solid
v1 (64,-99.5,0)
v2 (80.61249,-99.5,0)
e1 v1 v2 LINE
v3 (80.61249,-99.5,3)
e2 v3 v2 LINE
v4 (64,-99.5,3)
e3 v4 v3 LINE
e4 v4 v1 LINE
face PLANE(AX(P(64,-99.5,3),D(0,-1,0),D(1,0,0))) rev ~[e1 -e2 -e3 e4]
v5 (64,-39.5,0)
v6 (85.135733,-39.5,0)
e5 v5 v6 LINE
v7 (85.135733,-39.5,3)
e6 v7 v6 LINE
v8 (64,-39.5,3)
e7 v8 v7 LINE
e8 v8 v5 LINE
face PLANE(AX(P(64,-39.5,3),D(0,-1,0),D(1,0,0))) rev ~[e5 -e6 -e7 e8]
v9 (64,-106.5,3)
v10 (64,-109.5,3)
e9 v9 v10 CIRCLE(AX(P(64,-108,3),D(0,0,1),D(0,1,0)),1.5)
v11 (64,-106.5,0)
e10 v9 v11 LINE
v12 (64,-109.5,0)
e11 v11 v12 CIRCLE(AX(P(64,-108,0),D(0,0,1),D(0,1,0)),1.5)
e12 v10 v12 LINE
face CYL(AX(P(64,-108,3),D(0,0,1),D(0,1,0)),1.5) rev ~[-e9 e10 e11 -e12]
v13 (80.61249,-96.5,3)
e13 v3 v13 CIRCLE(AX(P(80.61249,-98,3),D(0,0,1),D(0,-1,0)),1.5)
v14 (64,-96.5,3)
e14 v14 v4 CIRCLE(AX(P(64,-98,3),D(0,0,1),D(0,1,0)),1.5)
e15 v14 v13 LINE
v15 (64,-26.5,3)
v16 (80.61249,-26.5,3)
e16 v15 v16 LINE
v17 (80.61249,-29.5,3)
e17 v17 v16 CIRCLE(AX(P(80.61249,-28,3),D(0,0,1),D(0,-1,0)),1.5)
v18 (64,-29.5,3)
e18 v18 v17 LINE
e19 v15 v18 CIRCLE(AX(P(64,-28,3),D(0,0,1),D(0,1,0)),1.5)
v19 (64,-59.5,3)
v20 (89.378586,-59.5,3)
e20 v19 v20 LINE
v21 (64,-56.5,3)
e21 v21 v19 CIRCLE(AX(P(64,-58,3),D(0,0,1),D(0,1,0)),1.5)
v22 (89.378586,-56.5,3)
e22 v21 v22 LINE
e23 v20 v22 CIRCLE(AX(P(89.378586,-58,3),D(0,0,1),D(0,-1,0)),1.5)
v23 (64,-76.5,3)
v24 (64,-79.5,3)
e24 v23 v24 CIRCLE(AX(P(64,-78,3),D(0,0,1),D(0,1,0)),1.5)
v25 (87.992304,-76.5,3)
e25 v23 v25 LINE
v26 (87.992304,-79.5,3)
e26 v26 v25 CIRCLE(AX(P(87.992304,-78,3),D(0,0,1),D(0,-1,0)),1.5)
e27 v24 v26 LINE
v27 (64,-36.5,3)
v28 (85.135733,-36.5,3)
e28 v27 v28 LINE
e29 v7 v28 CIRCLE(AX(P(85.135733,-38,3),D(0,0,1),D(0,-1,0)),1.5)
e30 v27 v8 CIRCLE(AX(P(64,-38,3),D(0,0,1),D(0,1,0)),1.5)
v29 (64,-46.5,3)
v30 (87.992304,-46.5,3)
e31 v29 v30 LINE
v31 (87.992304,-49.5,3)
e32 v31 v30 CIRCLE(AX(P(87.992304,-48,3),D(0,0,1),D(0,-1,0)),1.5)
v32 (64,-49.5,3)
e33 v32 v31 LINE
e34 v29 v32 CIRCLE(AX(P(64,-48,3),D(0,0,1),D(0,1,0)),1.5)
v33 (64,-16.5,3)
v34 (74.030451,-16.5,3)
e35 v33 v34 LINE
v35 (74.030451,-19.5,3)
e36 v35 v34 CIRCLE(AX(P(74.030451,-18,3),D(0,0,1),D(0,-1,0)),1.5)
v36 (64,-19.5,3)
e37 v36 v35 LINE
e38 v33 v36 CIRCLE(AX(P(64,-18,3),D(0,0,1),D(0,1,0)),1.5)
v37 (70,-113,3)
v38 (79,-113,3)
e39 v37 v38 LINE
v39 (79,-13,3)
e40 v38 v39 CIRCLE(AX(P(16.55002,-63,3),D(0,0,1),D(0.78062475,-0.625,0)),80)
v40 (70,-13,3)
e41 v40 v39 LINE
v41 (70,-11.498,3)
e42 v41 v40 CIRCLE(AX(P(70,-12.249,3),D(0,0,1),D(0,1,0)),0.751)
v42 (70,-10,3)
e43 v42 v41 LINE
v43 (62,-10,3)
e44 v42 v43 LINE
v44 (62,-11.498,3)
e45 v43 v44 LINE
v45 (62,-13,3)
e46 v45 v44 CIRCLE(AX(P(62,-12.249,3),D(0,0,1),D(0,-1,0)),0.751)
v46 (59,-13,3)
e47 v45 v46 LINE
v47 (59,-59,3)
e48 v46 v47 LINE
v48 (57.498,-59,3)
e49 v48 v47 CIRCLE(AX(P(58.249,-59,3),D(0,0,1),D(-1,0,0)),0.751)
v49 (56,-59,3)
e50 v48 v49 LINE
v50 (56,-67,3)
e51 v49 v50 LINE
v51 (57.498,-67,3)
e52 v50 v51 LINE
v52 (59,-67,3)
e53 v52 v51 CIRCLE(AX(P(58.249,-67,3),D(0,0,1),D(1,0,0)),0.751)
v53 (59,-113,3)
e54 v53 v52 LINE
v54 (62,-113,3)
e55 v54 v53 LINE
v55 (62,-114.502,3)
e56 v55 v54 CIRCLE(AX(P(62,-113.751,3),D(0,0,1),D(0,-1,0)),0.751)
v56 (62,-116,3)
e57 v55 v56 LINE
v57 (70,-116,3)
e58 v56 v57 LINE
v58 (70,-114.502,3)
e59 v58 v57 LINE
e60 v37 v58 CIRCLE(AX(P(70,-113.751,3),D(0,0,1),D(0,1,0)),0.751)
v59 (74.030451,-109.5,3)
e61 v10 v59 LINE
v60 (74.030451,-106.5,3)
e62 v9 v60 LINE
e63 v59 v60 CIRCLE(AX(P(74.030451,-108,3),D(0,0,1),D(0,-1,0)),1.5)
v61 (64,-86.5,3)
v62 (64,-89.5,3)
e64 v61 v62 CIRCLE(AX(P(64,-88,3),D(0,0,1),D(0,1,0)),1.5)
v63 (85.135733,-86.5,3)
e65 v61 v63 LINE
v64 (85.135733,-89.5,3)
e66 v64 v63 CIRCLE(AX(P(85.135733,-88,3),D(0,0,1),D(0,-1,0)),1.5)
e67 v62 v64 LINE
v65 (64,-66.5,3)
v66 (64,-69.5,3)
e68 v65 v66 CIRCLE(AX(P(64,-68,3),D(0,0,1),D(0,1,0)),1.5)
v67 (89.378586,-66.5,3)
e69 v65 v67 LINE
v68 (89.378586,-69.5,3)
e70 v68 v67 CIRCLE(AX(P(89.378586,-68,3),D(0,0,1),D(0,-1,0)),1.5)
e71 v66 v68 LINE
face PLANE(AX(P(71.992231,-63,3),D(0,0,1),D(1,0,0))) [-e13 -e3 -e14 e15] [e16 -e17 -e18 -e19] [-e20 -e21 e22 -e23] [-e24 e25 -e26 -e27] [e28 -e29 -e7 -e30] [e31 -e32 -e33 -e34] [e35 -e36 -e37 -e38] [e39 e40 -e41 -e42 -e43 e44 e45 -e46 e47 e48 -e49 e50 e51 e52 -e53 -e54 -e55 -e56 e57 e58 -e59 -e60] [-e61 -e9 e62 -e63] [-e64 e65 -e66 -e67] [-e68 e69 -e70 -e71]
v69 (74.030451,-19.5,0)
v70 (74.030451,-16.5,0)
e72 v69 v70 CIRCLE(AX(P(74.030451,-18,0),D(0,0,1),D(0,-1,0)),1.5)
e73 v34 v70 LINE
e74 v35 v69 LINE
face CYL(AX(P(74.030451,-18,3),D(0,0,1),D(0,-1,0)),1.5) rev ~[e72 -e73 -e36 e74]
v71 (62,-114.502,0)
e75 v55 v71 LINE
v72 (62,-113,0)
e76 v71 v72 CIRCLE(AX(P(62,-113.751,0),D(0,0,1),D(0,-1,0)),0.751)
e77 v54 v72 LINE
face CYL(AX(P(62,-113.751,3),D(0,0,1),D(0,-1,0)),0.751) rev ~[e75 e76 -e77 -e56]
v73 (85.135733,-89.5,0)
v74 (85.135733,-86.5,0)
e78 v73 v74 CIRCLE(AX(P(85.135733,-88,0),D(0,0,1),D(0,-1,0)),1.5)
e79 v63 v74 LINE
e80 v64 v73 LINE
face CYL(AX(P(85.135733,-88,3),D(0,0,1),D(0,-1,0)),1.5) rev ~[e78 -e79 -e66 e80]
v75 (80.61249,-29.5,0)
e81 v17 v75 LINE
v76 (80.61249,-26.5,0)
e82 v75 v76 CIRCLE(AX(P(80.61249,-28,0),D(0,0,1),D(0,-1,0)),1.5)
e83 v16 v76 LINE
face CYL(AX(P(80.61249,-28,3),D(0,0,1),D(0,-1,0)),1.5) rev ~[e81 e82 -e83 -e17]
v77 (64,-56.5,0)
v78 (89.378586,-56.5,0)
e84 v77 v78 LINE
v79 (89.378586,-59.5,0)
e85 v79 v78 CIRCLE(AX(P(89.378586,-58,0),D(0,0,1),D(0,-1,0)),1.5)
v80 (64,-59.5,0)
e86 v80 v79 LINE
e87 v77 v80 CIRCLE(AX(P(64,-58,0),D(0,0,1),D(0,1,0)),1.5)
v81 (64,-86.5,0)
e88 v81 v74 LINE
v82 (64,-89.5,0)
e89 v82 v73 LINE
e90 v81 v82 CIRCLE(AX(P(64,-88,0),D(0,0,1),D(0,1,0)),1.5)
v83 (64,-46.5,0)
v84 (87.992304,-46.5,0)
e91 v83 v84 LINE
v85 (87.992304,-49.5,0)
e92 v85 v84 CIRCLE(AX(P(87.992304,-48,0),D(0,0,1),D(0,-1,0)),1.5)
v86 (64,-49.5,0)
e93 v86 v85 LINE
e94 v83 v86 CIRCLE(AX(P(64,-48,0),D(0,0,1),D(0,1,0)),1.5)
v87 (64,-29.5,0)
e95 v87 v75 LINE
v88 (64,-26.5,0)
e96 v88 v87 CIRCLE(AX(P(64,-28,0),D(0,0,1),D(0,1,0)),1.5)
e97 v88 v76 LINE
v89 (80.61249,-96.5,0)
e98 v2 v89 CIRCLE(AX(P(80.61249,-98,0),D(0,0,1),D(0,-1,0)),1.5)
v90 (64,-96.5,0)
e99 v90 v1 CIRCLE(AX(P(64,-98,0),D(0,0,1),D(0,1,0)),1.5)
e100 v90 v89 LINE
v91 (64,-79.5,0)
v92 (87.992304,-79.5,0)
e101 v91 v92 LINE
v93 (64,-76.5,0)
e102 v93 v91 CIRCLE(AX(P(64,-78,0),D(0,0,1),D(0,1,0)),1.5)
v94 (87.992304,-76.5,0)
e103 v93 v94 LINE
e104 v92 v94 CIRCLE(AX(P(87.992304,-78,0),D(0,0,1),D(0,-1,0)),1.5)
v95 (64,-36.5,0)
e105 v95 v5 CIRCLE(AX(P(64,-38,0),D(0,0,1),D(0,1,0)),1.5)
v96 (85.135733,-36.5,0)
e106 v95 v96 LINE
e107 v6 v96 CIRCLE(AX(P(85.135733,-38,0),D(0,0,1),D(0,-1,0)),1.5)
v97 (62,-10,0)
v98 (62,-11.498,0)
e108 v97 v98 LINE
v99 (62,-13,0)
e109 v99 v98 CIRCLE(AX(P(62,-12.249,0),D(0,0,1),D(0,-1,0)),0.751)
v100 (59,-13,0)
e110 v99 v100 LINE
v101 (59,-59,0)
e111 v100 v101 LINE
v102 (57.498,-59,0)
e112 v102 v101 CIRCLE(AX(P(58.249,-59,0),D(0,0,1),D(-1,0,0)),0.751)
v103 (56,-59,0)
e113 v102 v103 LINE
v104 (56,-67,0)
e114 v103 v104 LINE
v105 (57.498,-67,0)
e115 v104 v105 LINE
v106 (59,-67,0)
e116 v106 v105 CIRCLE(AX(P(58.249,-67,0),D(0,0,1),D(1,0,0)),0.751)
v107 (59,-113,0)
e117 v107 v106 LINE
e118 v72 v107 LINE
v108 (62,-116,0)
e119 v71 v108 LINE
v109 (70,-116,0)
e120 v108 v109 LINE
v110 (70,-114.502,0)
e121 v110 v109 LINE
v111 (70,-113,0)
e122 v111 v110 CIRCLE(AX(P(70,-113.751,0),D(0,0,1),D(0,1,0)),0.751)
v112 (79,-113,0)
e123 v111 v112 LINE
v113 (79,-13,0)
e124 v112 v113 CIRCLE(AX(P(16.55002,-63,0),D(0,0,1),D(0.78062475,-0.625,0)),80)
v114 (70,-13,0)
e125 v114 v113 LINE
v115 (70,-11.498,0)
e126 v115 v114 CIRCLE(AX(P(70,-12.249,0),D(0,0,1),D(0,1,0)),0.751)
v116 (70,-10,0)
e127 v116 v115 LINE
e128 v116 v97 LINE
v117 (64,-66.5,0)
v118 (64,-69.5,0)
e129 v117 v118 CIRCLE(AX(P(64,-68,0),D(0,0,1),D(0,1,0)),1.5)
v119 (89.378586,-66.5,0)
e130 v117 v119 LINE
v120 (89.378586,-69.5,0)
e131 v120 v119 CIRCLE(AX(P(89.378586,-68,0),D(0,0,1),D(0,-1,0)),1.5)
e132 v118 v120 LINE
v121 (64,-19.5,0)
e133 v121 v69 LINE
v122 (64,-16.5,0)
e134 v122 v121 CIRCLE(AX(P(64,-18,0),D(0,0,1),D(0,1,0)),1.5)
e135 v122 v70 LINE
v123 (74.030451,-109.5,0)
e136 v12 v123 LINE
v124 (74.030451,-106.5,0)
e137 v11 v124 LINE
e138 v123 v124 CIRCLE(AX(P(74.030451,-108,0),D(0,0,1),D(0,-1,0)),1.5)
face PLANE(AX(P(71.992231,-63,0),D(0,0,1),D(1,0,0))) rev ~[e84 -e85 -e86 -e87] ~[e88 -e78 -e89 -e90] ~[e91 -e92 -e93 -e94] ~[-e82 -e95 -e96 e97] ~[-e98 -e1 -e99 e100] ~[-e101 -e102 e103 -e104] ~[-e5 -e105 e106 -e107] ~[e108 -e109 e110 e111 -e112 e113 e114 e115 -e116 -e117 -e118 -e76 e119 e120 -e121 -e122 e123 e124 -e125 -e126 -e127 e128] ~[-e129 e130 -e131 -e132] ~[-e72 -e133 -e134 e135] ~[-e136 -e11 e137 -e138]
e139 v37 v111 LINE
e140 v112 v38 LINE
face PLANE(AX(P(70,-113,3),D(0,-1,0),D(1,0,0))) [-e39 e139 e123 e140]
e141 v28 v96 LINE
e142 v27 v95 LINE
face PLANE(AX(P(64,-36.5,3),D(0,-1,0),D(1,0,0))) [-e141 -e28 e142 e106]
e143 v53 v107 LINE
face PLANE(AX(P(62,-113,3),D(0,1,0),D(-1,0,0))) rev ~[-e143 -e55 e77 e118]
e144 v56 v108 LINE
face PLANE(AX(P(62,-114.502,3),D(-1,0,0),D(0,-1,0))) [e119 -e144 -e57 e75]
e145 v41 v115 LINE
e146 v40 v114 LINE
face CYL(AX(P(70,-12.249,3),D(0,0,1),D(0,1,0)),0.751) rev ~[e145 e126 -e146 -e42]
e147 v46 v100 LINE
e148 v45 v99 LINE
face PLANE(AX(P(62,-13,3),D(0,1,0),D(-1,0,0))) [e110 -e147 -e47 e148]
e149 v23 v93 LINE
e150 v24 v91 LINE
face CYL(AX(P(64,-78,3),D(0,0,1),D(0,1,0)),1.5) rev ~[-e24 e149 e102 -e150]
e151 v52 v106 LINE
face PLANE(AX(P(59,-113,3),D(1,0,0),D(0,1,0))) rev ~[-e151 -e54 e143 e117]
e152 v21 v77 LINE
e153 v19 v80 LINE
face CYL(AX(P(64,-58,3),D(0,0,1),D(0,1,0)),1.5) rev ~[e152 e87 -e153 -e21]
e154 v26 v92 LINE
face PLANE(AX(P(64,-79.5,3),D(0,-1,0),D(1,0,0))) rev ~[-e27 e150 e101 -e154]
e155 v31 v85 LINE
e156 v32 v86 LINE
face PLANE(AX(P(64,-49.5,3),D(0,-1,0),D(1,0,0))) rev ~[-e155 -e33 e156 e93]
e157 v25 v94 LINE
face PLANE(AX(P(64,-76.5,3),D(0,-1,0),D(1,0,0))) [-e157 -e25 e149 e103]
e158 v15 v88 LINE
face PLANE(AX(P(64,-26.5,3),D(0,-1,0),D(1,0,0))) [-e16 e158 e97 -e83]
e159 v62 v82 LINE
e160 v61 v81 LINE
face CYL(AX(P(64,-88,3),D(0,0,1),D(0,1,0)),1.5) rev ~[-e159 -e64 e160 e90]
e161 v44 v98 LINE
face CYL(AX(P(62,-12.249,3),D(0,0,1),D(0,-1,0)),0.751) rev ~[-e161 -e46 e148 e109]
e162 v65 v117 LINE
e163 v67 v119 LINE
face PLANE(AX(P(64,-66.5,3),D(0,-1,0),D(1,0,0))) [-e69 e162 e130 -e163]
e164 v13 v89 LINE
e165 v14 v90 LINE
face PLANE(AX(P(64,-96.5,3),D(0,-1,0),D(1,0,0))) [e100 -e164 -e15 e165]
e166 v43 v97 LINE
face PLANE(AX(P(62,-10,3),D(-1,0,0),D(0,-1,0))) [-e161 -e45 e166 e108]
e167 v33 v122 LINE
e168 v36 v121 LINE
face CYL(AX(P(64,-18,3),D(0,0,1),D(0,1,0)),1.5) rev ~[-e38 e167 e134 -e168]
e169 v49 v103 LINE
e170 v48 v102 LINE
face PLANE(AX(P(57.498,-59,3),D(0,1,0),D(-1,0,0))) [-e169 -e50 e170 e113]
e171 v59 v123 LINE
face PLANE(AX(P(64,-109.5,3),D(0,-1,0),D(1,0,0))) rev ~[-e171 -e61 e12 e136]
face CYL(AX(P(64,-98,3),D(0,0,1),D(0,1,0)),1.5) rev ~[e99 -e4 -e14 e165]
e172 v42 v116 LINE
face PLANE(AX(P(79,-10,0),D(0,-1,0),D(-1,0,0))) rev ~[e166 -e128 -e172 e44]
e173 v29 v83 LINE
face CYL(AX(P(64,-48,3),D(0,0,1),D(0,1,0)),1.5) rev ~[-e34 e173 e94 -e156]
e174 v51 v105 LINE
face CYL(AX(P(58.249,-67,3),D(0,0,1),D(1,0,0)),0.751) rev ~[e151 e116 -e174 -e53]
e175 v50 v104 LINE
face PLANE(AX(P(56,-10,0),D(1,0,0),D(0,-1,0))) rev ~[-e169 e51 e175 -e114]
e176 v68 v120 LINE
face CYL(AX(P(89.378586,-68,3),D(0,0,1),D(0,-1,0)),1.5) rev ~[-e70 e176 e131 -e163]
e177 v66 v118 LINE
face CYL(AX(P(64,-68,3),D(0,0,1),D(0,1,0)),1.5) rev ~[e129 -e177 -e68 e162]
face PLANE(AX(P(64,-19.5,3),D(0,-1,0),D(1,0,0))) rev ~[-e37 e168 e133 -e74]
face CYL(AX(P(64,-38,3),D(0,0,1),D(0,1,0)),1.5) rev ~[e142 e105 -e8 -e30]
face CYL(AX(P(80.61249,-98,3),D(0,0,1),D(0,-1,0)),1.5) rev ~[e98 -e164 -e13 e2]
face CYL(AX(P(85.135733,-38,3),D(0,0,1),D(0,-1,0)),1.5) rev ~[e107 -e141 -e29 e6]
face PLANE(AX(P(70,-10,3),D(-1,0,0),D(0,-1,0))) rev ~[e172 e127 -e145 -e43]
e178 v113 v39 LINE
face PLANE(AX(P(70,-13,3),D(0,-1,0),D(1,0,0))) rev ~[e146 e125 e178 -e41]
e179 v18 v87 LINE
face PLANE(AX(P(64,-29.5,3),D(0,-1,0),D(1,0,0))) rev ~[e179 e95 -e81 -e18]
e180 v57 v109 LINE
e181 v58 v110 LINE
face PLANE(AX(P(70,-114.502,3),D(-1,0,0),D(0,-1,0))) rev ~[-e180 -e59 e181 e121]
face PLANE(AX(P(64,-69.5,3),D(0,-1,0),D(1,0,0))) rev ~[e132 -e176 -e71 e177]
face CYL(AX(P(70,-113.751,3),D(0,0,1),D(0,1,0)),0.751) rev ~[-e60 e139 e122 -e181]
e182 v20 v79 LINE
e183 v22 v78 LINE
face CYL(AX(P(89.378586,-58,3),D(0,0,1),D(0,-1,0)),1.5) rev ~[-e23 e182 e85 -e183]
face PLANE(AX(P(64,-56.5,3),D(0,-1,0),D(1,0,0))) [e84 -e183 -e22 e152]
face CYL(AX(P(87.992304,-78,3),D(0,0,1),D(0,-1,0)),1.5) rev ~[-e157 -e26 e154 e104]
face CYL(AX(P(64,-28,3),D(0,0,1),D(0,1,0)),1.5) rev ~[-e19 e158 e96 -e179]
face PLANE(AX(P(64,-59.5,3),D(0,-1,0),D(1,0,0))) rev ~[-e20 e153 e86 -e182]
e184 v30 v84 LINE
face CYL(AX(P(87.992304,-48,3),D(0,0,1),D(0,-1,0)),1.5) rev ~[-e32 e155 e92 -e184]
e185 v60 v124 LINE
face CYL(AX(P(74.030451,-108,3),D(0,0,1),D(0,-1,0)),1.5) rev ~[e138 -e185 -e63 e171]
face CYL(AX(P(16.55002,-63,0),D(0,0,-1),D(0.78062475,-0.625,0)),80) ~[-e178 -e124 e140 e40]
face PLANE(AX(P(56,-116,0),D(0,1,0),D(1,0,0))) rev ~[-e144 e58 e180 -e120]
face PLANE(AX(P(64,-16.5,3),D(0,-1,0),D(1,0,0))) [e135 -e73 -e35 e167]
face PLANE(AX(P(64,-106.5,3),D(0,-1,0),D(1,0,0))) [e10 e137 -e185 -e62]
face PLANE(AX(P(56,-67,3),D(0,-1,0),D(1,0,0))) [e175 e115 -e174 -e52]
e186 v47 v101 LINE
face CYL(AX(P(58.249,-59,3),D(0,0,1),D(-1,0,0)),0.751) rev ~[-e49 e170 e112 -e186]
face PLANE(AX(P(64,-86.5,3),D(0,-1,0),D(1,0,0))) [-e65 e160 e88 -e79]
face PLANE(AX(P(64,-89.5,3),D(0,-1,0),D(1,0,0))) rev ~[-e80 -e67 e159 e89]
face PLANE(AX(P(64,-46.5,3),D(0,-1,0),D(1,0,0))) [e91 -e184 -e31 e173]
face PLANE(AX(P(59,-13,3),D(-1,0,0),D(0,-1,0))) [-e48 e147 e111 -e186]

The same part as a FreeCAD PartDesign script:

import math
import FreeCAD as App
import Part
import Sketcher
from FreeCAD import Vector

doc = App.newDocument("Part")
params = doc.addObject("Spreadsheet::Sheet", "Params")
for row, (alias, value) in enumerate([
    ("sketch1_radius", "80 mm"),
    ("sketch1_width", "23 mm"),
    ("sketch1_height", "106 mm"),
    ("sketch1_height2", "3 mm"),
    ("pad1_length", "3 mm"),
    ("sketch2_width", "9 mm"),
    ("sketch2_width2", "3 mm"),
    ("sketch2_height", "49 mm"),
    ("sketch3_radius", "1.5 mm"),
], start=1):
    params.set(f"A{row}", alias)
    params.set(f"B{row}", "=" + value)
    params.setAlias(f"B{row}", alias)

body = doc.addObject("PartDesign::Body", "Body")

sketch1 = body.newObject("Sketcher::SketchObject", "Sketch")
sketch1.AttachmentSupport = (doc.getObject("XY_Plane"), [""])
sketch1.MapMode = "FlatFace"
sketch1.addGeometry(Part.LineSegment(Vector(79, -10, 0), Vector(56, -10, 0)), False)
sketch1.addGeometry(Part.LineSegment(Vector(56, -10, 0), Vector(56, -116, 0)), False)
sketch1.addGeometry(Part.LineSegment(Vector(56, -116, 0), Vector(79, -116, 0)), False)
sketch1.addGeometry(Part.LineSegment(Vector(79, -116, 0), Vector(79, -113, 0)), False)
sketch1.addGeometry(Part.ArcOfCircle(Part.Circle(Vector(16.6, -63, 0), Vector(0, 0, 1), 80), math.radians(-39), math.radians(39)), False)
sketch1.addGeometry(Part.LineSegment(Vector(79, -13, 0), Vector(79, -10, 0)), False)
sketch1.addConstraint(Sketcher.Constraint("Coincident", 0, 2, 1, 1))
sketch1.addConstraint(Sketcher.Constraint("Coincident", 1, 2, 2, 1))
sketch1.addConstraint(Sketcher.Constraint("Coincident", 2, 2, 3, 1))
sketch1.addConstraint(Sketcher.Constraint("Coincident", 3, 2, 4, 1))
sketch1.addConstraint(Sketcher.Constraint("Coincident", 4, 2, 5, 1))
sketch1.addConstraint(Sketcher.Constraint("Coincident", 5, 2, 0, 1))
sketch1.addConstraint(Sketcher.Constraint("Horizontal", 0))
sketch1.addConstraint(Sketcher.Constraint("Vertical", 1))
sketch1.addConstraint(Sketcher.Constraint("Horizontal", 2))
sketch1.addConstraint(Sketcher.Constraint("Vertical", 3))
sketch1.addConstraint(Sketcher.Constraint("Vertical", 5))
sketch1.addConstraint(Sketcher.Constraint("Vertical", 3, 2, 4, 2))
sketch1.addConstraint(Sketcher.Constraint("Equal", 3, 5))
sketch1.addConstraint(Sketcher.Constraint("Radius", 4, 80.0))
sketch1.addConstraint(Sketcher.Constraint("DistanceX", 0, 2, 0, 1, 23.0))
sketch1.addConstraint(Sketcher.Constraint("DistanceY", 1, 2, 1, 1, 106.0))
sketch1.addConstraint(Sketcher.Constraint("DistanceY", 3, 1, 3, 2, 3.0))
sketch1.addConstraint(Sketcher.Constraint("DistanceY", 4, 3, -1, 1, 63.0))
sketch1.addConstraint(Sketcher.Constraint("DistanceX", -1, 1, 0, 2, 56.0))
sketch1.setExpression("Constraints[13]", "Params.sketch1_radius")
sketch1.setExpression("Constraints[14]", "Params.sketch1_width")
sketch1.setExpression("Constraints[15]", "Params.sketch1_height")
sketch1.setExpression("Constraints[16]", "Params.sketch1_height2")
pad1 = body.newObject("PartDesign::Pad", "Pad")
pad1.Profile = sketch1
pad1.setExpression("Length", "Params.pad1_length")

sketch2 = body.newObject("Sketcher::SketchObject", "Sketch001")
sketch2.AttachmentSupport = (doc.getObject("XY_Plane"), [""])
sketch2.MapMode = "FlatFace"
sketch2.AttachmentOffset = App.Placement(Vector(0, 0, 3), App.Rotation())
sketch2.addGeometry(Part.LineSegment(Vector(79, -10, 0), Vector(70, -10, 0)), False)
sketch2.addGeometry(Part.LineSegment(Vector(70, -10, 0), Vector(70, -11.5, 0)), False)
sketch2.addGeometry(Part.ArcOfCircle(Part.Circle(Vector(70, -12.2, 0), Vector(0, 0, 1), 0.8), math.radians(90), math.radians(270)), False)
sketch2.addGeometry(Part.LineSegment(Vector(70, -13, 0), Vector(79, -13, 0)), False)
sketch2.addGeometry(Part.LineSegment(Vector(79, -13, 0), Vector(79, -10, 0)), False)
sketch2.addGeometry(Part.LineSegment(Vector(59, -13, 0), Vector(62, -13, 0)), False)
sketch2.addGeometry(Part.ArcOfCircle(Part.Circle(Vector(62, -12.2, 0), Vector(0, 0, 1), 0.8), math.radians(-90), math.radians(90)), False)
sketch2.addGeometry(Part.LineSegment(Vector(62, -11.5, 0), Vector(62, -10, 0)), False)
sketch2.addGeometry(Part.LineSegment(Vector(62, -10, 0), Vector(56, -10, 0)), False)
sketch2.addGeometry(Part.LineSegment(Vector(56, -10, 0), Vector(56, -59, 0)), False)
sketch2.addGeometry(Part.LineSegment(Vector(56, -59, 0), Vector(57.5, -59, 0)), False)
sketch2.addGeometry(Part.ArcOfCircle(Part.Circle(Vector(58.2, -59, 0), Vector(0, 0, 1), 0.8), math.radians(180), math.radians(360)), False)
sketch2.addGeometry(Part.LineSegment(Vector(59, -59, 0), Vector(59, -13, 0)), False)
sketch2.addGeometry(Part.LineSegment(Vector(70, -116, 0), Vector(79, -116, 0)), False)
sketch2.addGeometry(Part.LineSegment(Vector(79, -116, 0), Vector(79, -113, 0)), False)
sketch2.addGeometry(Part.LineSegment(Vector(79, -113, 0), Vector(70, -113, 0)), False)
sketch2.addGeometry(Part.ArcOfCircle(Part.Circle(Vector(70, -113.8, 0), Vector(0, 0, 1), 0.8), math.radians(90), math.radians(270)), False)
sketch2.addGeometry(Part.LineSegment(Vector(70, -114.5, 0), Vector(70, -116, 0)), False)
sketch2.addGeometry(Part.LineSegment(Vector(62, -113, 0), Vector(59, -113, 0)), False)
sketch2.addGeometry(Part.LineSegment(Vector(59, -113, 0), Vector(59, -67, 0)), False)
sketch2.addGeometry(Part.ArcOfCircle(Part.Circle(Vector(58.2, -67, 0), Vector(0, 0, 1), 0.8), math.radians(0), math.radians(180)), False)
sketch2.addGeometry(Part.LineSegment(Vector(57.5, -67, 0), Vector(56, -67, 0)), False)
sketch2.addGeometry(Part.LineSegment(Vector(56, -67, 0), Vector(56, -116, 0)), False)
sketch2.addGeometry(Part.LineSegment(Vector(56, -116, 0), Vector(62, -116, 0)), False)
sketch2.addGeometry(Part.LineSegment(Vector(62, -116, 0), Vector(62, -114.5, 0)), False)
sketch2.addGeometry(Part.ArcOfCircle(Part.Circle(Vector(62, -113.8, 0), Vector(0, 0, 1), 0.8), math.radians(-90), math.radians(90)), False)
sketch2.addConstraint(Sketcher.Constraint("Coincident", 0, 2, 1, 1))
sketch2.addConstraint(Sketcher.Constraint("Coincident", 1, 2, 2, 1))
sketch2.addConstraint(Sketcher.Constraint("Tangent", 2, 2, 3, 1))
sketch2.addConstraint(Sketcher.Constraint("Coincident", 3, 2, 4, 1))
sketch2.addConstraint(Sketcher.Constraint("Coincident", 4, 2, 0, 1))
sketch2.addConstraint(Sketcher.Constraint("Tangent", 5, 2, 6, 1))
sketch2.addConstraint(Sketcher.Constraint("Coincident", 6, 2, 7, 1))
sketch2.addConstraint(Sketcher.Constraint("Coincident", 7, 2, 8, 1))
sketch2.addConstraint(Sketcher.Constraint("Coincident", 8, 2, 9, 1))
sketch2.addConstraint(Sketcher.Constraint("Coincident", 9, 2, 10, 1))
sketch2.addConstraint(Sketcher.Constraint("Coincident", 10, 2, 11, 1))
sketch2.addConstraint(Sketcher.Constraint("Tangent", 11, 2, 12, 1))
sketch2.addConstraint(Sketcher.Constraint("Coincident", 12, 2, 5, 1))
sketch2.addConstraint(Sketcher.Constraint("Coincident", 13, 2, 14, 1))
sketch2.addConstraint(Sketcher.Constraint("Coincident", 14, 2, 15, 1))
sketch2.addConstraint(Sketcher.Constraint("Tangent", 15, 2, 16, 1))
sketch2.addConstraint(Sketcher.Constraint("Coincident", 16, 2, 17, 1))
sketch2.addConstraint(Sketcher.Constraint("Coincident", 17, 2, 13, 1))
sketch2.addConstraint(Sketcher.Constraint("Coincident", 18, 2, 19, 1))
sketch2.addConstraint(Sketcher.Constraint("Tangent", 19, 2, 20, 1))
sketch2.addConstraint(Sketcher.Constraint("Coincident", 20, 2, 21, 1))
sketch2.addConstraint(Sketcher.Constraint("Coincident", 21, 2, 22, 1))
sketch2.addConstraint(Sketcher.Constraint("Coincident", 22, 2, 23, 1))
sketch2.addConstraint(Sketcher.Constraint("Coincident", 23, 2, 24, 1))
sketch2.addConstraint(Sketcher.Constraint("Coincident", 24, 2, 25, 1))
sketch2.addConstraint(Sketcher.Constraint("Tangent", 25, 2, 18, 1))
sketch2.addConstraint(Sketcher.Constraint("Horizontal", 0))
sketch2.addConstraint(Sketcher.Constraint("Vertical", 1))
sketch2.addConstraint(Sketcher.Constraint("Horizontal", 3))
sketch2.addConstraint(Sketcher.Constraint("Vertical", 4))
sketch2.addConstraint(Sketcher.Constraint("Horizontal", 5))
sketch2.addConstraint(Sketcher.Constraint("Vertical", 7))
sketch2.addConstraint(Sketcher.Constraint("Horizontal", 8))
sketch2.addConstraint(Sketcher.Constraint("Vertical", 9))
sketch2.addConstraint(Sketcher.Constraint("Horizontal", 10))
sketch2.addConstraint(Sketcher.Constraint("Vertical", 12))
sketch2.addConstraint(Sketcher.Constraint("Horizontal", 13))
sketch2.addConstraint(Sketcher.Constraint("Vertical", 14))
sketch2.addConstraint(Sketcher.Constraint("Horizontal", 15))
sketch2.addConstraint(Sketcher.Constraint("Vertical", 17))
sketch2.addConstraint(Sketcher.Constraint("Horizontal", 18))
sketch2.addConstraint(Sketcher.Constraint("Vertical", 19))
sketch2.addConstraint(Sketcher.Constraint("Horizontal", 21))
sketch2.addConstraint(Sketcher.Constraint("Vertical", 22))
sketch2.addConstraint(Sketcher.Constraint("Horizontal", 23))
sketch2.addConstraint(Sketcher.Constraint("Vertical", 24))
sketch2.addConstraint(Sketcher.Constraint("Equal", 2, 6))
sketch2.addConstraint(Sketcher.Constraint("Equal", 6, 11))
sketch2.addConstraint(Sketcher.Constraint("Equal", 11, 16))
sketch2.addConstraint(Sketcher.Constraint("Equal", 16, 20))
sketch2.addConstraint(Sketcher.Constraint("Equal", 20, 25))
sketch2.addConstraint(Sketcher.Constraint("Horizontal", 2, 3, 6, 3))
sketch2.addConstraint(Sketcher.Constraint("Horizontal", 16, 3, 25, 3))
sketch2.addConstraint(Sketcher.Constraint("Horizontal", 4, 2, 7, 2))
sketch2.addConstraint(Sketcher.Constraint("Horizontal", 11, 3, 9, 2))
sketch2.addConstraint(Sketcher.Constraint("Horizontal", 19, 2, 20, 2))
sketch2.addConstraint(Sketcher.Constraint("Horizontal", 17, 2, 22, 2))
sketch2.addConstraint(Sketcher.Constraint("Vertical", 2, 3, 16, 3))
sketch2.addConstraint(Sketcher.Constraint("Vertical", 11, 3, 20, 3))
sketch2.addConstraint(Sketcher.Constraint("Vertical", 6, 3, 25, 3))
sketch2.addConstraint(Sketcher.Constraint("Vertical", 16, 3, 0, 2))
sketch2.addConstraint(Sketcher.Constraint("Vertical", 5, 2, 6, 2))
sketch2.addConstraint(Sketcher.Constraint("Vertical", 4, 2, 13, 2))
sketch2.addConstraint(Sketcher.Constraint("Vertical", 15, 2, 16, 2))
sketch2.addConstraint(Sketcher.Constraint("Vertical", 9, 2, 21, 2))
sketch2.addConstraint(Sketcher.Constraint("Vertical", 7, 2, 23, 2))
sketch2.addConstraint(Sketcher.Constraint("Equal", 21, 1))
sketch2.addConstraint(Sketcher.Constraint("Equal", 18, 4))
sketch2.addConstraint(Sketcher.Constraint("Equal", 4, 14))
sketch2.addConstraint(Sketcher.Constraint("Equal", 12, 19))
sketch2.addConstraint(Sketcher.Constraint("DistanceX", 0, 2, 0, 1, 9.0))
sketch2.addConstraint(Sketcher.Constraint("DistanceX", 5, 1, 5, 2, 3.0))
sketch2.addConstraint(Sketcher.Constraint("DistanceY", 9, 2, 9, 1, 49.0))
sketch2.addConstraint(Sketcher.Constraint("DistanceX", -1, 1, 2, 3, 70.0))
sketch2.addConstraint(Sketcher.Constraint("DistanceX", -1, 1, 6, 3, 62.0))
sketch2.addConstraint(Sketcher.Constraint("DistanceY", 11, 3, -1, 1, 59.0))
sketch2.addConstraint(Sketcher.Constraint("DistanceY", 20, 3, -1, 1, 67.0))
sketch2.addConstraint(Sketcher.Constraint("Radius", 2, 0.751))
sketch2.setExpression("Constraints[70]", "Params.sketch2_width")
sketch2.setExpression("Constraints[71]", "Params.sketch2_width2")
sketch2.setExpression("Constraints[72]", "Params.sketch2_height")
pocket1 = body.newObject("PartDesign::Pocket", "Pocket")
pocket1.Profile = sketch2
pocket1.Type = "ThroughAll"

sketch3 = body.newObject("Sketcher::SketchObject", "Sketch002")
sketch3.AttachmentSupport = (doc.getObject("XY_Plane"), [""])
sketch3.MapMode = "FlatFace"
sketch3.AttachmentOffset = App.Placement(Vector(0, 0, 3), App.Rotation())
sketch3.addGeometry(Part.LineSegment(Vector(64, -109.5, 0), Vector(74, -109.5, 0)), False)
sketch3.addGeometry(Part.ArcOfCircle(Part.Circle(Vector(74, -108, 0), Vector(0, 0, 1), 1.5), math.radians(-90), math.radians(90)), False)
sketch3.addGeometry(Part.LineSegment(Vector(74, -106.5, 0), Vector(64, -106.5, 0)), False)
sketch3.addGeometry(Part.ArcOfCircle(Part.Circle(Vector(64, -108, 0), Vector(0, 0, 1), 1.5), math.radians(90), math.radians(270)), False)
sketch3.addGeometry(Part.LineSegment(Vector(80.6, -96.5, 0), Vector(64, -96.5, 0)), False)
sketch3.addGeometry(Part.ArcOfCircle(Part.Circle(Vector(64, -98, 0), Vector(0, 0, 1), 1.5), math.radians(90), math.radians(270)), False)
sketch3.addGeometry(Part.LineSegment(Vector(64, -99.5, 0), Vector(80.6, -99.5, 0)), False)
sketch3.addGeometry(Part.ArcOfCircle(Part.Circle(Vector(80.6, -98, 0), Vector(0, 0, 1), 1.5), math.radians(-90), math.radians(90)), False)
sketch3.addGeometry(Part.LineSegment(Vector(85.1, -86.5, 0), Vector(64, -86.5, 0)), False)
sketch3.addGeometry(Part.ArcOfCircle(Part.Circle(Vector(64, -88, 0), Vector(0, 0, 1), 1.5), math.radians(90), math.radians(270)), False)
sketch3.addGeometry(Part.LineSegment(Vector(64, -89.5, 0), Vector(85.1, -89.5, 0)), False)
sketch3.addGeometry(Part.ArcOfCircle(Part.Circle(Vector(85.1, -88, 0), Vector(0, 0, 1), 1.5), math.radians(-90), math.radians(90)), False)
sketch3.addGeometry(Part.LineSegment(Vector(88, -76.5, 0), Vector(64, -76.5, 0)), False)
sketch3.addGeometry(Part.ArcOfCircle(Part.Circle(Vector(64, -78, 0), Vector(0, 0, 1), 1.5), math.radians(90), math.radians(270)), False)
sketch3.addGeometry(Part.LineSegment(Vector(64, -79.5, 0), Vector(88, -79.5, 0)), False)
sketch3.addGeometry(Part.ArcOfCircle(Part.Circle(Vector(88, -78, 0), Vector(0, 0, 1), 1.5), math.radians(-90), math.radians(90)), False)
sketch3.addGeometry(Part.LineSegment(Vector(64, -69.5, 0), Vector(89.4, -69.5, 0)), False)
sketch3.addGeometry(Part.ArcOfCircle(Part.Circle(Vector(89.4, -68, 0), Vector(0, 0, 1), 1.5), math.radians(-90), math.radians(90)), False)
sketch3.addGeometry(Part.LineSegment(Vector(89.4, -66.5, 0), Vector(64, -66.5, 0)), False)
sketch3.addGeometry(Part.ArcOfCircle(Part.Circle(Vector(64, -68, 0), Vector(0, 0, 1), 1.5), math.radians(90), math.radians(270)), False)
sketch3.addGeometry(Part.LineSegment(Vector(64, -59.5, 0), Vector(89.4, -59.5, 0)), False)
sketch3.addGeometry(Part.ArcOfCircle(Part.Circle(Vector(89.4, -58, 0), Vector(0, 0, 1), 1.5), math.radians(-90), math.radians(90)), False)
sketch3.addGeometry(Part.LineSegment(Vector(89.4, -56.5, 0), Vector(64, -56.5, 0)), False)
sketch3.addGeometry(Part.ArcOfCircle(Part.Circle(Vector(64, -58, 0), Vector(0, 0, 1), 1.5), math.radians(90), math.radians(270)), False)
sketch3.addGeometry(Part.LineSegment(Vector(64, -49.5, 0), Vector(88, -49.5, 0)), False)
sketch3.addGeometry(Part.ArcOfCircle(Part.Circle(Vector(88, -48, 0), Vector(0, 0, 1), 1.5), math.radians(-90), math.radians(90)), False)
sketch3.addGeometry(Part.LineSegment(Vector(88, -46.5, 0), Vector(64, -46.5, 0)), False)
sketch3.addGeometry(Part.ArcOfCircle(Part.Circle(Vector(64, -48, 0), Vector(0, 0, 1), 1.5), math.radians(90), math.radians(270)), False)
sketch3.addGeometry(Part.LineSegment(Vector(64, -39.5, 0), Vector(85.1, -39.5, 0)), False)
sketch3.addGeometry(Part.ArcOfCircle(Part.Circle(Vector(85.1, -38, 0), Vector(0, 0, 1), 1.5), math.radians(-90), math.radians(90)), False)
sketch3.addGeometry(Part.LineSegment(Vector(85.1, -36.5, 0), Vector(64, -36.5, 0)), False)
sketch3.addGeometry(Part.ArcOfCircle(Part.Circle(Vector(64, -38, 0), Vector(0, 0, 1), 1.5), math.radians(90), math.radians(270)), False)
sketch3.addGeometry(Part.LineSegment(Vector(80.6, -26.5, 0), Vector(64, -26.5, 0)), False)
sketch3.addGeometry(Part.ArcOfCircle(Part.Circle(Vector(64, -28, 0), Vector(0, 0, 1), 1.5), math.radians(90), math.radians(270)), False)
sketch3.addGeometry(Part.LineSegment(Vector(64, -29.5, 0), Vector(80.6, -29.5, 0)), False)
sketch3.addGeometry(Part.ArcOfCircle(Part.Circle(Vector(80.6, -28, 0), Vector(0, 0, 1), 1.5), math.radians(-90), math.radians(90)), False)
sketch3.addGeometry(Part.LineSegment(Vector(74, -16.5, 0), Vector(64, -16.5, 0)), False)
sketch3.addGeometry(Part.ArcOfCircle(Part.Circle(Vector(64, -18, 0), Vector(0, 0, 1), 1.5), math.radians(90), math.radians(270)), False)
sketch3.addGeometry(Part.LineSegment(Vector(64, -19.5, 0), Vector(74, -19.5, 0)), False)
sketch3.addGeometry(Part.ArcOfCircle(Part.Circle(Vector(74, -18, 0), Vector(0, 0, 1), 1.5), math.radians(-90), math.radians(90)), False)
sketch3.addConstraint(Sketcher.Constraint("Tangent", 0, 2, 1, 1))
sketch3.addConstraint(Sketcher.Constraint("Tangent", 1, 2, 2, 1))
sketch3.addConstraint(Sketcher.Constraint("Tangent", 2, 2, 3, 1))
sketch3.addConstraint(Sketcher.Constraint("Tangent", 3, 2, 0, 1))
sketch3.addConstraint(Sketcher.Constraint("Tangent", 4, 2, 5, 1))
sketch3.addConstraint(Sketcher.Constraint("Tangent", 5, 2, 6, 1))
sketch3.addConstraint(Sketcher.Constraint("Tangent", 6, 2, 7, 1))
sketch3.addConstraint(Sketcher.Constraint("Tangent", 7, 2, 4, 1))
sketch3.addConstraint(Sketcher.Constraint("Tangent", 8, 2, 9, 1))
sketch3.addConstraint(Sketcher.Constraint("Tangent", 9, 2, 10, 1))
sketch3.addConstraint(Sketcher.Constraint("Tangent", 10, 2, 11, 1))
sketch3.addConstraint(Sketcher.Constraint("Tangent", 11, 2, 8, 1))
sketch3.addConstraint(Sketcher.Constraint("Tangent", 12, 2, 13, 1))
sketch3.addConstraint(Sketcher.Constraint("Tangent", 13, 2, 14, 1))
sketch3.addConstraint(Sketcher.Constraint("Tangent", 14, 2, 15, 1))
sketch3.addConstraint(Sketcher.Constraint("Tangent", 15, 2, 12, 1))
sketch3.addConstraint(Sketcher.Constraint("Tangent", 16, 2, 17, 1))
sketch3.addConstraint(Sketcher.Constraint("Tangent", 17, 2, 18, 1))
sketch3.addConstraint(Sketcher.Constraint("Tangent", 18, 2, 19, 1))
sketch3.addConstraint(Sketcher.Constraint("Tangent", 19, 2, 16, 1))
sketch3.addConstraint(Sketcher.Constraint("Tangent", 20, 2, 21, 1))
sketch3.addConstraint(Sketcher.Constraint("Tangent", 21, 2, 22, 1))
sketch3.addConstraint(Sketcher.Constraint("Tangent", 22, 2, 23, 1))
sketch3.addConstraint(Sketcher.Constraint("Tangent", 23, 2, 20, 1))
sketch3.addConstraint(Sketcher.Constraint("Tangent", 24, 2, 25, 1))
sketch3.addConstraint(Sketcher.Constraint("Tangent", 25, 2, 26, 1))
sketch3.addConstraint(Sketcher.Constraint("Tangent", 26, 2, 27, 1))
sketch3.addConstraint(Sketcher.Constraint("Tangent", 27, 2, 24, 1))
sketch3.addConstraint(Sketcher.Constraint("Tangent", 28, 2, 29, 1))
sketch3.addConstraint(Sketcher.Constraint("Tangent", 29, 2, 30, 1))
sketch3.addConstraint(Sketcher.Constraint("Tangent", 30, 2, 31, 1))
sketch3.addConstraint(Sketcher.Constraint("Tangent", 31, 2, 28, 1))
sketch3.addConstraint(Sketcher.Constraint("Tangent", 32, 2, 33, 1))
sketch3.addConstraint(Sketcher.Constraint("Tangent", 33, 2, 34, 1))
sketch3.addConstraint(Sketcher.Constraint("Tangent", 34, 2, 35, 1))
sketch3.addConstraint(Sketcher.Constraint("Tangent", 35, 2, 32, 1))
sketch3.addConstraint(Sketcher.Constraint("Tangent", 36, 2, 37, 1))
sketch3.addConstraint(Sketcher.Constraint("Tangent", 37, 2, 38, 1))
sketch3.addConstraint(Sketcher.Constraint("Tangent", 38, 2, 39, 1))
sketch3.addConstraint(Sketcher.Constraint("Tangent", 39, 2, 36, 1))
sketch3.addConstraint(Sketcher.Constraint("Horizontal", 0))
sketch3.addConstraint(Sketcher.Constraint("Horizontal", 2))
sketch3.addConstraint(Sketcher.Constraint("Horizontal", 4))
sketch3.addConstraint(Sketcher.Constraint("Horizontal", 6))
sketch3.addConstraint(Sketcher.Constraint("Horizontal", 8))
sketch3.addConstraint(Sketcher.Constraint("Horizontal", 10))
sketch3.addConstraint(Sketcher.Constraint("Horizontal", 12))
sketch3.addConstraint(Sketcher.Constraint("Horizontal", 14))
sketch3.addConstraint(Sketcher.Constraint("Horizontal", 16))
sketch3.addConstraint(Sketcher.Constraint("Horizontal", 18))
sketch3.addConstraint(Sketcher.Constraint("Horizontal", 20))
sketch3.addConstraint(Sketcher.Constraint("Horizontal", 22))
sketch3.addConstraint(Sketcher.Constraint("Horizontal", 24))
sketch3.addConstraint(Sketcher.Constraint("Horizontal", 26))
sketch3.addConstraint(Sketcher.Constraint("Horizontal", 28))
sketch3.addConstraint(Sketcher.Constraint("Horizontal", 30))
sketch3.addConstraint(Sketcher.Constraint("Horizontal", 32))
sketch3.addConstraint(Sketcher.Constraint("Horizontal", 34))
sketch3.addConstraint(Sketcher.Constraint("Horizontal", 36))
sketch3.addConstraint(Sketcher.Constraint("Horizontal", 38))
sketch3.addConstraint(Sketcher.Constraint("Equal", 3, 5))
sketch3.addConstraint(Sketcher.Constraint("Equal", 7, 9))
sketch3.addConstraint(Sketcher.Constraint("Equal", 11, 13))
sketch3.addConstraint(Sketcher.Constraint("Equal", 15, 17))
sketch3.addConstraint(Sketcher.Constraint("Equal", 19, 21))
sketch3.addConstraint(Sketcher.Constraint("Equal", 23, 25))
sketch3.addConstraint(Sketcher.Constraint("Equal", 27, 29))
sketch3.addConstraint(Sketcher.Constraint("Equal", 31, 33))
sketch3.addConstraint(Sketcher.Constraint("Equal", 35, 37))
sketch3.addConstraint(Sketcher.Constraint("Vertical", 3, 3, 5, 3))
sketch3.addConstraint(Sketcher.Constraint("Vertical", 5, 3, 9, 3))
sketch3.addConstraint(Sketcher.Constraint("Vertical", 9, 3, 13, 3))
sketch3.addConstraint(Sketcher.Constraint("Vertical", 13, 3, 19, 3))
sketch3.addConstraint(Sketcher.Constraint("Vertical", 17, 3, 21, 3))
sketch3.addConstraint(Sketcher.Constraint("Vertical", 19, 3, 23, 3))
sketch3.addConstraint(Sketcher.Constraint("Vertical", 15, 3, 25, 3))
sketch3.addConstraint(Sketcher.Constraint("Vertical", 23, 3, 27, 3))
sketch3.addConstraint(Sketcher.Constraint("Vertical", 11, 3, 29, 3))
sketch3.addConstraint(Sketcher.Constraint("Vertical", 27, 3, 31, 3))
sketch3.addConstraint(Sketcher.Constraint("Vertical", 31, 3, 33, 3))
sketch3.addConstraint(Sketcher.Constraint("Vertical", 7, 3, 35, 3))
sketch3.addConstraint(Sketcher.Constraint("Vertical", 33, 3, 37, 3))
sketch3.addConstraint(Sketcher.Constraint("Vertical", 1, 3, 39, 3))
sketch3.addConstraint(Sketcher.Constraint("Radius", 1, 1.5))
sketch3.addConstraint(Sketcher.Constraint("DistanceY", 1, 3, -1, 1, 108.0))
sketch3.addConstraint(Sketcher.Constraint("DistanceX", -1, 1, 3, 3, 64.0))
sketch3.addConstraint(Sketcher.Constraint("DistanceY", 5, 3, -1, 1, 98.0))
sketch3.addConstraint(Sketcher.Constraint("DistanceY", 9, 3, -1, 1, 88.0))
sketch3.addConstraint(Sketcher.Constraint("DistanceY", 13, 3, -1, 1, 78.0))
sketch3.addConstraint(Sketcher.Constraint("DistanceY", 17, 3, -1, 1, 68.0))
sketch3.addConstraint(Sketcher.Constraint("DistanceY", 21, 3, -1, 1, 58.0))
sketch3.addConstraint(Sketcher.Constraint("DistanceY", 25, 3, -1, 1, 48.0))
sketch3.addConstraint(Sketcher.Constraint("DistanceY", 29, 3, -1, 1, 38.0))
sketch3.addConstraint(Sketcher.Constraint("DistanceY", 33, 3, -1, 1, 28.0))
sketch3.addConstraint(Sketcher.Constraint("DistanceY", 37, 3, -1, 1, 18.0))
sketch3.addConstraint(Sketcher.Constraint("DistanceX", 0, 1, 0, 2, 10.030451))
sketch3.addConstraint(Sketcher.Constraint("DistanceX", 4, 2, 4, 1, 16.61249))
sketch3.addConstraint(Sketcher.Constraint("DistanceX", 8, 2, 8, 1, 21.135733))
sketch3.addConstraint(Sketcher.Constraint("DistanceX", 12, 2, 12, 1, 23.992304))
sketch3.addConstraint(Sketcher.Constraint("DistanceX", 16, 1, 16, 2, 25.378586))
sketch3.setExpression("Constraints[83]", "Params.sketch3_radius")
pocket2 = body.newObject("PartDesign::Pocket", "Pocket001")
pocket2.Profile = sketch3
pocket2.Type = "ThroughAll"

doc.recompute()
